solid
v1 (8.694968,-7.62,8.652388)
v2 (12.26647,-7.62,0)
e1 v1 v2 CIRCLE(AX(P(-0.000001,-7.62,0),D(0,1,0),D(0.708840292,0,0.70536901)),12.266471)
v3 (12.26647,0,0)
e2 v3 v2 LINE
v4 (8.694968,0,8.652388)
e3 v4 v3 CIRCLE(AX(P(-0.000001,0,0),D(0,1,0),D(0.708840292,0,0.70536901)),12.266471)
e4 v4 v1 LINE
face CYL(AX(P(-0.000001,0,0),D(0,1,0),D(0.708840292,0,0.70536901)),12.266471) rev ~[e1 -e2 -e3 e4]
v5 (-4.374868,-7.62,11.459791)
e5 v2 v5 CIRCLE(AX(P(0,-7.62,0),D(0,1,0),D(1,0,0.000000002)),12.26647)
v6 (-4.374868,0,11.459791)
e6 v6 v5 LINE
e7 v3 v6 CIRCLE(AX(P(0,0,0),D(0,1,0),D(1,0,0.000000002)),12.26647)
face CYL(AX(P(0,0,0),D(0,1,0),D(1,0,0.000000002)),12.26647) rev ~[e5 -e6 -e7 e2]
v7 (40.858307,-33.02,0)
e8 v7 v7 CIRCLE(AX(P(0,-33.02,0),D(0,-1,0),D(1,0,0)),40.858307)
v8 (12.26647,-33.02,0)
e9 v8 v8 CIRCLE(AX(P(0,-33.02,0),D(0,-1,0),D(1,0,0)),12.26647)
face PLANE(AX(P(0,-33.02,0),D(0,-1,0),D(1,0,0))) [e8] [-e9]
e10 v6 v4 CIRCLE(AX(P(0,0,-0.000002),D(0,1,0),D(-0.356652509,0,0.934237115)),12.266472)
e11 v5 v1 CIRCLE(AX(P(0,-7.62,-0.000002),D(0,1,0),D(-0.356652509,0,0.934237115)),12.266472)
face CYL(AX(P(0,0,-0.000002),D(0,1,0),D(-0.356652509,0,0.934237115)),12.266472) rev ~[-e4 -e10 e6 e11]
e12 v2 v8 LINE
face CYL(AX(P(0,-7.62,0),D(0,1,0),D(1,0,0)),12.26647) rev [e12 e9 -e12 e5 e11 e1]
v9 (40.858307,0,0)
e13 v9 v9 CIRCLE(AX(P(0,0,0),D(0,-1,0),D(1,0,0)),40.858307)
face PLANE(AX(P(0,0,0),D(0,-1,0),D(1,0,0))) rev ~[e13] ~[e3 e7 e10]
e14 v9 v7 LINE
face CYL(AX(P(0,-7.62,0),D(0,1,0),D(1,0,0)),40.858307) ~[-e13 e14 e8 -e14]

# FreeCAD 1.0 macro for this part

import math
import FreeCAD as App
import Part
import Sketcher

V = App.Vector
Q = App.Units.Quantity

doc = App.newDocument("Part")
body = doc.addObject("PartDesign::Body", "Body")

sketch1 = body.newObject("Sketcher::SketchObject", "Sketch")
sketch1.AttachmentSupport = (doc.getObject("XZ_Plane"), [""])
sketch1.MapMode = "FlatFace"
sketch1.addGeometry([
    Part.Circle(V(0, 0, 0), V(0, 0, 1), 41),
    Part.ArcOfCircle(Part.Circle(V(0, 0, 0), V(0, 0, 1), 12), math.radians(45), math.radians(111)),
    Part.ArcOfCircle(Part.Circle(V(0, 0, 0), V(0, 0, 1), 12), math.radians(0), math.radians(45)),
    Part.ArcOfCircle(Part.Circle(V(0, 0, 0), V(0, 0, 1), 12), math.radians(111), math.radians(360)),
], False)
sketch1.addConstraint([
    Sketcher.Constraint("Tangent", 1, 1, 2, 2),
    Sketcher.Constraint("Tangent", 2, 1, 3, 2),
    Sketcher.Constraint("Tangent", 3, 1, 1, 2),
    Sketcher.Constraint("Coincident", 0, 3, -1, 1),
    Sketcher.Constraint("Coincident", 1, 3, -1, 1),
    Sketcher.Constraint("PointOnObject", 2, 1, -1),
    Sketcher.Constraint("Radius", 1, 12.266472),
    Sketcher.Constraint("Diameter", 0, 81.716614),
    Sketcher.Constraint("DistanceX", 1, 1, 2, 1, 3.571502),
    Sketcher.Constraint("DistanceX", 3, 1, -1, 1, 4.374868),
])
pad1 = body.newObject("PartDesign::Pad", "Pad")
pad1.Profile = sketch1
pad1.Length = Q("0.3 in")

sketch2 = body.newObject("Sketcher::SketchObject", "Sketch001")
sketch2.AttachmentSupport = (doc.getObject("XZ_Plane"), [""])
sketch2.MapMode = "FlatFace"
sketch2.AttachmentOffset = App.Placement(V(0, 0, 0.3 * 25.4), App.Rotation())
sketch2.addGeometry([
    Part.Circle(V(0, 0, 0), V(0, 0, 1), 41),
    Part.Circle(V(0, 0, 0), V(0, 0, 1), 12),
], False)
sketch2.addConstraint([
    Sketcher.Constraint("Coincident", 0, 3, -1, 1),
    Sketcher.Constraint("Coincident", 1, 3, -1, 1),
    Sketcher.Constraint("Diameter", 1, 24.53294),
    Sketcher.Constraint("Diameter", 0, 81.716614),
])
pad2 = body.newObject("PartDesign::Pad", "Pad001")
pad2.Profile = sketch2
pad2.Length = Q("1 in")

doc.recompute()
